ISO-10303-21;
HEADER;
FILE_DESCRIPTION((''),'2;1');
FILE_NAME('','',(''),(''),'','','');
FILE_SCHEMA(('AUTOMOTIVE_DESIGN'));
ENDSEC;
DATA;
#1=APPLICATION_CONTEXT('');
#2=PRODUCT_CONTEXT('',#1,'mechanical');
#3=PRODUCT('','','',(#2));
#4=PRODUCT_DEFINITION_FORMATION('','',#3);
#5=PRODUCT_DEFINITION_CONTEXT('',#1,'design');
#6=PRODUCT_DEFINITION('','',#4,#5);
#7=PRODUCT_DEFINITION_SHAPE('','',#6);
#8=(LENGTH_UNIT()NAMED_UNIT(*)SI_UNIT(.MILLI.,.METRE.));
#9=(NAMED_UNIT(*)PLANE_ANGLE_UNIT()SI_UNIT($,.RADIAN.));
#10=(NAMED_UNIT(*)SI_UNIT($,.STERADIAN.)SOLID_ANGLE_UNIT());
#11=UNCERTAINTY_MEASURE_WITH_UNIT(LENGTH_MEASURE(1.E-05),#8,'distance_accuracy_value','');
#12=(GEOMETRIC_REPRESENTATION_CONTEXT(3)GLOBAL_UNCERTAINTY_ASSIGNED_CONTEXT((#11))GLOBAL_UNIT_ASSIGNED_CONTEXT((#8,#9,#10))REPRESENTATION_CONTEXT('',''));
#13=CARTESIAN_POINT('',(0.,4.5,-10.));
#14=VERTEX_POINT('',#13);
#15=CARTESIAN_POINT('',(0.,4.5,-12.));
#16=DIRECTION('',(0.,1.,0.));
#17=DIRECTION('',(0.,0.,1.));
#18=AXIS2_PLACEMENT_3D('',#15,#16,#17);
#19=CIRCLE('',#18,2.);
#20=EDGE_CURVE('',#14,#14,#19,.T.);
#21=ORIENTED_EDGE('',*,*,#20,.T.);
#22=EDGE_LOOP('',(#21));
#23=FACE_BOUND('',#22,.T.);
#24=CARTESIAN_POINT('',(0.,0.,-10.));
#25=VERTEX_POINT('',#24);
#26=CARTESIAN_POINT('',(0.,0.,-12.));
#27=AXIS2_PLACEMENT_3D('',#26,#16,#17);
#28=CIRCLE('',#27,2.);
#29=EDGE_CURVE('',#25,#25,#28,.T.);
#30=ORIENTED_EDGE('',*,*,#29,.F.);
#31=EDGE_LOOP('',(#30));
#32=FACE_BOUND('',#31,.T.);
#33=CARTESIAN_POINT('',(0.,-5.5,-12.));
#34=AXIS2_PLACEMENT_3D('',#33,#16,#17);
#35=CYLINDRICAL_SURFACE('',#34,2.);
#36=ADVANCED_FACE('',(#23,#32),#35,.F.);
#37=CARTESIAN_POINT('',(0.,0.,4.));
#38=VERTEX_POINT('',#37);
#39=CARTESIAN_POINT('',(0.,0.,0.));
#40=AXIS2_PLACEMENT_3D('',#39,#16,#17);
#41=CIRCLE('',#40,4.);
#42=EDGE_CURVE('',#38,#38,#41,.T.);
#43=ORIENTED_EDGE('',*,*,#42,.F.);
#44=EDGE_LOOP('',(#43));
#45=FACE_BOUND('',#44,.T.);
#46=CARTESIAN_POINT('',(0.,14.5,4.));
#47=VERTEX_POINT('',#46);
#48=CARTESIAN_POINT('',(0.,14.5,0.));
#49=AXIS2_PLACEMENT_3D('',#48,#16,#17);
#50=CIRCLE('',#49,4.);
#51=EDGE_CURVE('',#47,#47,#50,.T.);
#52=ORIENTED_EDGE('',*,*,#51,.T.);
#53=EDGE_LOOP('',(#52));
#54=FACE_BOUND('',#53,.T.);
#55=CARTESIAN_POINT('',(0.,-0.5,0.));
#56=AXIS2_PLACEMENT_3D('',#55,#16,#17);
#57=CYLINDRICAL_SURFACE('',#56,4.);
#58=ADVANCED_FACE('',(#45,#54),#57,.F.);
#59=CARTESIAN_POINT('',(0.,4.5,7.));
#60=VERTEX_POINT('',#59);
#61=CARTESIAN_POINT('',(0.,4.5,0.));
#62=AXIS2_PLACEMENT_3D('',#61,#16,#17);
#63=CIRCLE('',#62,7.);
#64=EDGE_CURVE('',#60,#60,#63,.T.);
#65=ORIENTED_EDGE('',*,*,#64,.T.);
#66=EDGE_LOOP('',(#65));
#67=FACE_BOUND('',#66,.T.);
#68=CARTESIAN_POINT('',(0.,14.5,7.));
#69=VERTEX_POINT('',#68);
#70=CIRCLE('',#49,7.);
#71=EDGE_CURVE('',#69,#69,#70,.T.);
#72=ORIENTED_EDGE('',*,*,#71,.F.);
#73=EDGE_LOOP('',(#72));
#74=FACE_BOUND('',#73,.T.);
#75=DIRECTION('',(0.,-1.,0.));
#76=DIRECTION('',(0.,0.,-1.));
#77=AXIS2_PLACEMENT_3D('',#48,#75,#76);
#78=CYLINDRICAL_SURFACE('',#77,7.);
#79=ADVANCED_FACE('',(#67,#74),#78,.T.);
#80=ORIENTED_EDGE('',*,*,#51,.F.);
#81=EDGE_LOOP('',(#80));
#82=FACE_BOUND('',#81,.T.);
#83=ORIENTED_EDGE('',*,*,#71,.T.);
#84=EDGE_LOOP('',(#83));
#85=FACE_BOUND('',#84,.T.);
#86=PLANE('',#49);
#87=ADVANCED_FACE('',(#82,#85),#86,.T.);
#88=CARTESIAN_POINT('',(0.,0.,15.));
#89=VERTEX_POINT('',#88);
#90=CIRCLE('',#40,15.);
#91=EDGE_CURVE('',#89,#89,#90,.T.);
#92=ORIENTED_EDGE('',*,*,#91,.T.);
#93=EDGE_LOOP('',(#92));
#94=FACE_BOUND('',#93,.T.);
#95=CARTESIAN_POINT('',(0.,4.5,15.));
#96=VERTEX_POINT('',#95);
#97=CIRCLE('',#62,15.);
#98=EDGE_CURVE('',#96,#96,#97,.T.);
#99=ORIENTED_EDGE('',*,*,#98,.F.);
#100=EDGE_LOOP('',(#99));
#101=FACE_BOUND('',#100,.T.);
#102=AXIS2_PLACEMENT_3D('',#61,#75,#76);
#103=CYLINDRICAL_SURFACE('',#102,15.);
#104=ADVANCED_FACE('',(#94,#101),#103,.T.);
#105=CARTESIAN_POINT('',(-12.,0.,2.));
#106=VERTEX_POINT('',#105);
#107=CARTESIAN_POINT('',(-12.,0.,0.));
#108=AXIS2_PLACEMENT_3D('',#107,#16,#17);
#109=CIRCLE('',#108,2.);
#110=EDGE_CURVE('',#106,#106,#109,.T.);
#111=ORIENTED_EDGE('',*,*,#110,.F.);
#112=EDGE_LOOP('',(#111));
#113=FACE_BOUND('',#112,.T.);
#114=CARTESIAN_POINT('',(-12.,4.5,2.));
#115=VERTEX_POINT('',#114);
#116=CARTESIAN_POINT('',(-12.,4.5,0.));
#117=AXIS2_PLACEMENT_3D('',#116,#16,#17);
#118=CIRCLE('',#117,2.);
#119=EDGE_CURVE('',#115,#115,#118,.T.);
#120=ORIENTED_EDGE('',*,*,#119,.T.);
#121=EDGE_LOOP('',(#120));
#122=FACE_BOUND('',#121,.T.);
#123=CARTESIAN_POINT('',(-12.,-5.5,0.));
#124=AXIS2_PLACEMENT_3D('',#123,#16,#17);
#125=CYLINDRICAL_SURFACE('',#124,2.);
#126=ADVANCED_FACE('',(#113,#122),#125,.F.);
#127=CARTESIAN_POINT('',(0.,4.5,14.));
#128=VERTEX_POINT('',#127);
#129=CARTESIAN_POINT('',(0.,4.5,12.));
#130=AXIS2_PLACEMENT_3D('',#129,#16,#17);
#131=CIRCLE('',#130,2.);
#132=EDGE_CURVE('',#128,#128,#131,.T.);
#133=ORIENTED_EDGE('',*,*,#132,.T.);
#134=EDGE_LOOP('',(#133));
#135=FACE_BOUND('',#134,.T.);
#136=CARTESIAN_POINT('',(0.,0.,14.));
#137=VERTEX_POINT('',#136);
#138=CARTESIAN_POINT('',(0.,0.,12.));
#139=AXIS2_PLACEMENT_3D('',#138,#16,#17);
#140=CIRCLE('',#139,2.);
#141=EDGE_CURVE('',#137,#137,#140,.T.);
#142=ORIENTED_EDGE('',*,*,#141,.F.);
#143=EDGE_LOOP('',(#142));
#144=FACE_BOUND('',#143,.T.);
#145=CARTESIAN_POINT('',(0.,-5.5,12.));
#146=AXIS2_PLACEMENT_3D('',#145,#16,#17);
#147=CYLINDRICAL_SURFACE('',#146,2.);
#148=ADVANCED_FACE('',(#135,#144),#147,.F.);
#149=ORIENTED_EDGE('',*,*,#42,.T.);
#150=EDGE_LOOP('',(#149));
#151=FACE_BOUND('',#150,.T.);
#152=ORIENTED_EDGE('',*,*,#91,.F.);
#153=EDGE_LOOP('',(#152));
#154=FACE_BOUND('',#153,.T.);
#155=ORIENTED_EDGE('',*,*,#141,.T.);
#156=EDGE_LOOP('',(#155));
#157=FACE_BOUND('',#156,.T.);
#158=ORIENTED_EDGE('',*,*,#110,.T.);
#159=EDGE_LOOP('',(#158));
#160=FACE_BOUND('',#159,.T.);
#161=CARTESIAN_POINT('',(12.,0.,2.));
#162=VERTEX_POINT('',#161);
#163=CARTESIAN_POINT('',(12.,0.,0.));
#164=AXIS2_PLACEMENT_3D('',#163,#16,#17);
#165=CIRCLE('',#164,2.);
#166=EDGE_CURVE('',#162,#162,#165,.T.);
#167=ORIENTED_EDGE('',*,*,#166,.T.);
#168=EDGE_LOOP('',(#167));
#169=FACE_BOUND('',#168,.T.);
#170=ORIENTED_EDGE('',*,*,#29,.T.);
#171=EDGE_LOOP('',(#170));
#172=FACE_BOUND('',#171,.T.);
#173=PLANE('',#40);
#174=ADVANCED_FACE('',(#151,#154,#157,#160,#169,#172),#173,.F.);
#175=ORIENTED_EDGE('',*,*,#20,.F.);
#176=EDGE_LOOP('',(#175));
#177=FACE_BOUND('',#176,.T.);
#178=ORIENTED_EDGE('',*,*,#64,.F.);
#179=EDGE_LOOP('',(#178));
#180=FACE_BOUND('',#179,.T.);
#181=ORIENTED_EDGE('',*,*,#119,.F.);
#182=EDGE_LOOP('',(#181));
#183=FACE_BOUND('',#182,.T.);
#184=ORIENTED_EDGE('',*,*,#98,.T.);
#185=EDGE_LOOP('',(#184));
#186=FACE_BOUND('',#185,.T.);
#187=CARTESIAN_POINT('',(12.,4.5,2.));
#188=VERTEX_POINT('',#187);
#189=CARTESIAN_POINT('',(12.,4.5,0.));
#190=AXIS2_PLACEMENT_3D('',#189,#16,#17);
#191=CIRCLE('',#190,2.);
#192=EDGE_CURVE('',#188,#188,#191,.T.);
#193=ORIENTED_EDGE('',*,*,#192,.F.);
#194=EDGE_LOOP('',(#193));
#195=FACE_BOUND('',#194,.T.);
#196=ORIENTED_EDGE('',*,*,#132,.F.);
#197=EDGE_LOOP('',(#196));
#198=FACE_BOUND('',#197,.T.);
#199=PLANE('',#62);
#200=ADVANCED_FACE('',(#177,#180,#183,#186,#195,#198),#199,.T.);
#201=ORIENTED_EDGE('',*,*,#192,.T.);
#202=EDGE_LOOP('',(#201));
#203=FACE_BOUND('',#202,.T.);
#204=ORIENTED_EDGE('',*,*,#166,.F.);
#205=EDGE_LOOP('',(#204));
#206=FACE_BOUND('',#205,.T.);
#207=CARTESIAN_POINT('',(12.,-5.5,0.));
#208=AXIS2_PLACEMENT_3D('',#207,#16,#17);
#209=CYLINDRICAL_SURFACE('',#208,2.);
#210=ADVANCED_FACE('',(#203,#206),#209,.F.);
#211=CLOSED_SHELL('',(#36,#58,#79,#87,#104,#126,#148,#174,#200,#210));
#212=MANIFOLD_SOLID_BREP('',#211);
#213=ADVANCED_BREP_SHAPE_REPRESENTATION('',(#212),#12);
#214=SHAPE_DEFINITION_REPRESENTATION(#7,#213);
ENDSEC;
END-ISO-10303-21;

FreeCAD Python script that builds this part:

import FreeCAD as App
import Part
import Sketcher
Q = App.Units.Quantity

doc = App.newDocument("Part")
body = doc.addObject("PartDesign::Body", "Body")

sketch1 = body.newObject("Sketcher::SketchObject", "Sketch")
sketch1.AttachmentSupport = (doc.getObject("XZ_Plane"), [""])
sketch1.MapMode = "FlatFace"
sketch1.addGeometry(Part.Circle(App.Vector(0, 0, 0), App.Vector(0, 0, 1), 15), False)
sketch1.addConstraint(Sketcher.Constraint("Coincident", 0, 3, -1, 1))
sketch1.addConstraint(Sketcher.Constraint("Diameter", 0, Q("30 mm")))
pad1 = body.newObject("PartDesign::Pad", "Pad")
pad1.Profile = sketch1
pad1.Length = 4.5
pad1.Reversed = True

sketch2 = body.newObject("Sketcher::SketchObject", "Sketch001")
sketch2.AttachmentSupport = (doc.getObject("XZ_Plane"), [""])
sketch2.MapMode = "FlatFace"
sketch2.AttachmentOffset = App.Placement(App.Vector(0, 0, -4.5), App.Rotation())
sketch2.addGeometry(Part.Circle(App.Vector(0, 0, 0), App.Vector(0, 0, 1), 7), False)
sketch2.addConstraint(Sketcher.Constraint("Coincident", 0, 3, -1, 1))
sketch2.addConstraint(Sketcher.Constraint("Diameter", 0, Q("14 mm")))
pad2 = body.newObject("PartDesign::Pad", "Pad001")
pad2.Profile = sketch2
pad2.Length = 10
pad2.Reversed = True

sketch3 = body.newObject("Sketcher::SketchObject", "Sketch002")
sketch3.AttachmentSupport = (doc.getObject("XZ_Plane"), [""])
sketch3.MapMode = "FlatFace"
sketch3.AttachmentOffset = App.Placement(App.Vector(0, 0, -14.5), App.Rotation())
sketch3.addGeometry(Part.Circle(App.Vector(0, 0, 0), App.Vector(0, 0, 1), 4), False)
sketch3.addConstraint(Sketcher.Constraint("Coincident", 0, 3, -1, 1))
sketch3.addConstraint(Sketcher.Constraint("Diameter", 0, Q("8 mm")))
pocket1 = body.newObject("PartDesign::Pocket", "Pocket")
pocket1.Profile = sketch3
pocket1.Length = 15
pocket1.Reversed = True

sketch4 = body.newObject("Sketcher::SketchObject", "Sketch003")
sketch4.AttachmentSupport = (doc.getObject("XZ_Plane"), [""])
sketch4.MapMode = "FlatFace"
sketch4.AttachmentOffset = App.Placement(App.Vector(0, 0, -4.5), App.Rotation())
sketch4.addGeometry(Part.Circle(App.Vector(0, -12, 0), App.Vector(0, 0, 1), 2), False)
sketch4.addGeometry(Part.Circle(App.Vector(12, 0, 0), App.Vector(0, 0, 1), 2), False)
sketch4.addGeometry(Part.Circle(App.Vector(0, 12, 0), App.Vector(0, 0, 1), 2), False)
sketch4.addGeometry(Part.Circle(App.Vector(-12, 0, 0), App.Vector(0, 0, 1), 2), False)
sketch4.addConstraint(Sketcher.Constraint("Equal", 0, 1))
sketch4.addConstraint(Sketcher.Constraint("Equal", 1, 2))
sketch4.addConstraint(Sketcher.Constraint("Equal", 2, 3))
sketch4.addConstraint(Sketcher.Constraint("Symmetric", 0, 3, 2, 3, -1, 1))
sketch4.addConstraint(Sketcher.Constraint("Symmetric", 1, 3, 3, 3, -1, 1))
sketch4.addConstraint(Sketcher.Constraint("PointOnObject", 0, 3, -2))
sketch4.addConstraint(Sketcher.Constraint("PointOnObject", 1, 3, -1))
sketch4.addConstraint(Sketcher.Constraint("Diameter", 0, Q("4 mm")))
sketch4.addConstraint(Sketcher.Constraint("DistanceY", 0, 3, -1, 1, Q("12 mm")))
sketch4.addConstraint(Sketcher.Constraint("DistanceX", -1, 1, 1, 3, Q("12 mm")))
pocket2 = body.newObject("PartDesign::Pocket", "Pocket001")
pocket2.Profile = sketch4
pocket2.Length = 10
pocket2.Reversed = True

doc.recompute()
